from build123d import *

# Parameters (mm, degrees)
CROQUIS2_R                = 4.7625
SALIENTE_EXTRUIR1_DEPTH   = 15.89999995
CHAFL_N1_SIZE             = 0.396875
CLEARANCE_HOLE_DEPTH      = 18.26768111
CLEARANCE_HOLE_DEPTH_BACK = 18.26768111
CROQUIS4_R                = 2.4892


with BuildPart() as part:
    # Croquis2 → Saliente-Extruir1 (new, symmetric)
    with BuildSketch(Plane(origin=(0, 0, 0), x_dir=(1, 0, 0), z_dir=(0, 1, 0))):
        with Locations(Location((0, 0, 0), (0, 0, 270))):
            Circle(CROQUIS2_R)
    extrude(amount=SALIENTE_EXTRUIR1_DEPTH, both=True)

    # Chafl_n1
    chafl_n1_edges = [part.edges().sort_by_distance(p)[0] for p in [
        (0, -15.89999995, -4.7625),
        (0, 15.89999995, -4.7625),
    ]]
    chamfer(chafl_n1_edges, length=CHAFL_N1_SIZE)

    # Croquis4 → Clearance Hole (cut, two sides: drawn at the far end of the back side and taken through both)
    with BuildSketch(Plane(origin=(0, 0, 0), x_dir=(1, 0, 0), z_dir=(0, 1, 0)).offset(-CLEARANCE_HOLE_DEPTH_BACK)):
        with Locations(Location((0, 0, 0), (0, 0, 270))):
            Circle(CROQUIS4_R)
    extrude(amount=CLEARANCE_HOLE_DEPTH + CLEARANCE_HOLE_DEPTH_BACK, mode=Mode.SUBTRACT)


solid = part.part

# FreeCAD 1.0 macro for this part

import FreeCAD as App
import Part
import Sketcher
from FreeCAD import Vector
Q = App.Units.Quantity


def edges_at(feature, points):
    """Names of the edges that pass closest to the given points."""
    edges = feature.Shape.Edges
    near = lambda p: min(range(len(edges)), key=lambda i: edges[i].distToShape(Part.Vertex(*p))[0])
    return sorted({f"Edge{near(p) + 1}" for p in points})

doc = App.newDocument("Part")
body = doc.addObject("PartDesign::Body", "Body")

sketch1 = body.newObject("Sketcher::SketchObject", "Sketch")
sketch1.AttachmentSupport = (doc.getObject("XZ_Plane"), [""])
sketch1.MapMode = "FlatFace"
sketch1.addGeometry(Part.Circle(Vector(0, 0, 0), Vector(0, 0, 1), 4.7625), False)
sketch1.addConstraint([
    Sketcher.Constraint("Coincident", 0, 3, -1, 1),
    Sketcher.Constraint("Diameter", 0, Q("0.375 in")),
])
pad1 = body.newObject("PartDesign::Pad", "Pad")
pad1.Profile = sketch1
pad1.Length = 31.8
pad1.Midplane = True
doc.recompute()

chamfer = body.newObject("PartDesign::Chamfer", "Chamfer")
chamfer.Base = (pad1, edges_at(pad1, [(0, -15.9, -4.763), (0, 15.9, -4.763)]))
chamfer.Size = Q("0.015625 in")

sketch2 = body.newObject("Sketcher::SketchObject", "Sketch001")
sketch2.AttachmentSupport = (doc.getObject("XZ_Plane"), [""])
sketch2.MapMode = "FlatFace"
sketch2.addGeometry(Part.Circle(Vector(0, 0, 0), Vector(0, 0, 1), 2.4892), False)
sketch2.addConstraint([
    Sketcher.Constraint("Coincident", 0, 3, -1, 1),
    Sketcher.Constraint("Diameter", 0, Q("0.196 in")),
])
pocket1 = body.newObject("PartDesign::Pocket", "Pocket")
pocket1.Profile = sketch2
pocket1.Type = "ThroughAll"
pocket1.Midplane = True

doc.recompute()
